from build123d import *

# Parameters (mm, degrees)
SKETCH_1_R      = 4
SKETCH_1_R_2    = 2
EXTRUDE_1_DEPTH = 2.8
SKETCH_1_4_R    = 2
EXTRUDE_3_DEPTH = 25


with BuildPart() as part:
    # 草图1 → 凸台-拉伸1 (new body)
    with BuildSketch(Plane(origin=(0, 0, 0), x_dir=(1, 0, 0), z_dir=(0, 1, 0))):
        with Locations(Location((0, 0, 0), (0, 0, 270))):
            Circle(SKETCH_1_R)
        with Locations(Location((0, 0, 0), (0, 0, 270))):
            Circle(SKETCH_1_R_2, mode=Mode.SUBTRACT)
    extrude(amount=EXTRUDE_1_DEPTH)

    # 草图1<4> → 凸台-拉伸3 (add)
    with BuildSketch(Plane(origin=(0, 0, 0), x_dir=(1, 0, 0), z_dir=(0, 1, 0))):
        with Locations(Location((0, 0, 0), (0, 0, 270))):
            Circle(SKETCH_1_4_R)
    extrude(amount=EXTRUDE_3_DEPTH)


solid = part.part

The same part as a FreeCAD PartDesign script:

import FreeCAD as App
import Part
import Sketcher

doc = App.newDocument("Part")
body = doc.addObject("PartDesign::Body", "Body")

sketch1 = body.newObject("Sketcher::SketchObject", "Sketch")
sketch1.AttachmentSupport = (doc.getObject("XZ_Plane"), [""])
sketch1.MapMode = "FlatFace"
sketch1.addGeometry([
    Part.Circle(App.Vector(0, 0, 0), App.Vector(0, 0, 1), 4),
    Part.Circle(App.Vector(0, 0, 0), App.Vector(0, 0, 1), 2),
], False)
sketch1.addConstraint([
    Sketcher.Constraint("Coincident", 0, 3, -1, 1),
    Sketcher.Constraint("Coincident", 1, 3, -1, 1),
    Sketcher.Constraint("Diameter", 0, 8.0),
    Sketcher.Constraint("Diameter", 1, 4.0),
])
pad1 = body.newObject("PartDesign::Pad", "Pad")
pad1.Profile = sketch1
pad1.Length = 2.8
pad1.Reversed = True

sketch2 = body.newObject("Sketcher::SketchObject", "Sketch001")
sketch2.AttachmentSupport = (doc.getObject("XZ_Plane"), [""])
sketch2.MapMode = "FlatFace"
sketch2.addGeometry(Part.Circle(App.Vector(0, 0, 0), App.Vector(0, 0, 1), 2), False)
sketch2.addConstraint([
    Sketcher.Constraint("Coincident", 0, 3, -1, 1),
    Sketcher.Constraint("Diameter", 0, 4.0),
])
pad2 = body.newObject("PartDesign::Pad", "Pad001")
pad2.Profile = sketch2
pad2.Length = 25
pad2.Reversed = True

doc.recompute()
